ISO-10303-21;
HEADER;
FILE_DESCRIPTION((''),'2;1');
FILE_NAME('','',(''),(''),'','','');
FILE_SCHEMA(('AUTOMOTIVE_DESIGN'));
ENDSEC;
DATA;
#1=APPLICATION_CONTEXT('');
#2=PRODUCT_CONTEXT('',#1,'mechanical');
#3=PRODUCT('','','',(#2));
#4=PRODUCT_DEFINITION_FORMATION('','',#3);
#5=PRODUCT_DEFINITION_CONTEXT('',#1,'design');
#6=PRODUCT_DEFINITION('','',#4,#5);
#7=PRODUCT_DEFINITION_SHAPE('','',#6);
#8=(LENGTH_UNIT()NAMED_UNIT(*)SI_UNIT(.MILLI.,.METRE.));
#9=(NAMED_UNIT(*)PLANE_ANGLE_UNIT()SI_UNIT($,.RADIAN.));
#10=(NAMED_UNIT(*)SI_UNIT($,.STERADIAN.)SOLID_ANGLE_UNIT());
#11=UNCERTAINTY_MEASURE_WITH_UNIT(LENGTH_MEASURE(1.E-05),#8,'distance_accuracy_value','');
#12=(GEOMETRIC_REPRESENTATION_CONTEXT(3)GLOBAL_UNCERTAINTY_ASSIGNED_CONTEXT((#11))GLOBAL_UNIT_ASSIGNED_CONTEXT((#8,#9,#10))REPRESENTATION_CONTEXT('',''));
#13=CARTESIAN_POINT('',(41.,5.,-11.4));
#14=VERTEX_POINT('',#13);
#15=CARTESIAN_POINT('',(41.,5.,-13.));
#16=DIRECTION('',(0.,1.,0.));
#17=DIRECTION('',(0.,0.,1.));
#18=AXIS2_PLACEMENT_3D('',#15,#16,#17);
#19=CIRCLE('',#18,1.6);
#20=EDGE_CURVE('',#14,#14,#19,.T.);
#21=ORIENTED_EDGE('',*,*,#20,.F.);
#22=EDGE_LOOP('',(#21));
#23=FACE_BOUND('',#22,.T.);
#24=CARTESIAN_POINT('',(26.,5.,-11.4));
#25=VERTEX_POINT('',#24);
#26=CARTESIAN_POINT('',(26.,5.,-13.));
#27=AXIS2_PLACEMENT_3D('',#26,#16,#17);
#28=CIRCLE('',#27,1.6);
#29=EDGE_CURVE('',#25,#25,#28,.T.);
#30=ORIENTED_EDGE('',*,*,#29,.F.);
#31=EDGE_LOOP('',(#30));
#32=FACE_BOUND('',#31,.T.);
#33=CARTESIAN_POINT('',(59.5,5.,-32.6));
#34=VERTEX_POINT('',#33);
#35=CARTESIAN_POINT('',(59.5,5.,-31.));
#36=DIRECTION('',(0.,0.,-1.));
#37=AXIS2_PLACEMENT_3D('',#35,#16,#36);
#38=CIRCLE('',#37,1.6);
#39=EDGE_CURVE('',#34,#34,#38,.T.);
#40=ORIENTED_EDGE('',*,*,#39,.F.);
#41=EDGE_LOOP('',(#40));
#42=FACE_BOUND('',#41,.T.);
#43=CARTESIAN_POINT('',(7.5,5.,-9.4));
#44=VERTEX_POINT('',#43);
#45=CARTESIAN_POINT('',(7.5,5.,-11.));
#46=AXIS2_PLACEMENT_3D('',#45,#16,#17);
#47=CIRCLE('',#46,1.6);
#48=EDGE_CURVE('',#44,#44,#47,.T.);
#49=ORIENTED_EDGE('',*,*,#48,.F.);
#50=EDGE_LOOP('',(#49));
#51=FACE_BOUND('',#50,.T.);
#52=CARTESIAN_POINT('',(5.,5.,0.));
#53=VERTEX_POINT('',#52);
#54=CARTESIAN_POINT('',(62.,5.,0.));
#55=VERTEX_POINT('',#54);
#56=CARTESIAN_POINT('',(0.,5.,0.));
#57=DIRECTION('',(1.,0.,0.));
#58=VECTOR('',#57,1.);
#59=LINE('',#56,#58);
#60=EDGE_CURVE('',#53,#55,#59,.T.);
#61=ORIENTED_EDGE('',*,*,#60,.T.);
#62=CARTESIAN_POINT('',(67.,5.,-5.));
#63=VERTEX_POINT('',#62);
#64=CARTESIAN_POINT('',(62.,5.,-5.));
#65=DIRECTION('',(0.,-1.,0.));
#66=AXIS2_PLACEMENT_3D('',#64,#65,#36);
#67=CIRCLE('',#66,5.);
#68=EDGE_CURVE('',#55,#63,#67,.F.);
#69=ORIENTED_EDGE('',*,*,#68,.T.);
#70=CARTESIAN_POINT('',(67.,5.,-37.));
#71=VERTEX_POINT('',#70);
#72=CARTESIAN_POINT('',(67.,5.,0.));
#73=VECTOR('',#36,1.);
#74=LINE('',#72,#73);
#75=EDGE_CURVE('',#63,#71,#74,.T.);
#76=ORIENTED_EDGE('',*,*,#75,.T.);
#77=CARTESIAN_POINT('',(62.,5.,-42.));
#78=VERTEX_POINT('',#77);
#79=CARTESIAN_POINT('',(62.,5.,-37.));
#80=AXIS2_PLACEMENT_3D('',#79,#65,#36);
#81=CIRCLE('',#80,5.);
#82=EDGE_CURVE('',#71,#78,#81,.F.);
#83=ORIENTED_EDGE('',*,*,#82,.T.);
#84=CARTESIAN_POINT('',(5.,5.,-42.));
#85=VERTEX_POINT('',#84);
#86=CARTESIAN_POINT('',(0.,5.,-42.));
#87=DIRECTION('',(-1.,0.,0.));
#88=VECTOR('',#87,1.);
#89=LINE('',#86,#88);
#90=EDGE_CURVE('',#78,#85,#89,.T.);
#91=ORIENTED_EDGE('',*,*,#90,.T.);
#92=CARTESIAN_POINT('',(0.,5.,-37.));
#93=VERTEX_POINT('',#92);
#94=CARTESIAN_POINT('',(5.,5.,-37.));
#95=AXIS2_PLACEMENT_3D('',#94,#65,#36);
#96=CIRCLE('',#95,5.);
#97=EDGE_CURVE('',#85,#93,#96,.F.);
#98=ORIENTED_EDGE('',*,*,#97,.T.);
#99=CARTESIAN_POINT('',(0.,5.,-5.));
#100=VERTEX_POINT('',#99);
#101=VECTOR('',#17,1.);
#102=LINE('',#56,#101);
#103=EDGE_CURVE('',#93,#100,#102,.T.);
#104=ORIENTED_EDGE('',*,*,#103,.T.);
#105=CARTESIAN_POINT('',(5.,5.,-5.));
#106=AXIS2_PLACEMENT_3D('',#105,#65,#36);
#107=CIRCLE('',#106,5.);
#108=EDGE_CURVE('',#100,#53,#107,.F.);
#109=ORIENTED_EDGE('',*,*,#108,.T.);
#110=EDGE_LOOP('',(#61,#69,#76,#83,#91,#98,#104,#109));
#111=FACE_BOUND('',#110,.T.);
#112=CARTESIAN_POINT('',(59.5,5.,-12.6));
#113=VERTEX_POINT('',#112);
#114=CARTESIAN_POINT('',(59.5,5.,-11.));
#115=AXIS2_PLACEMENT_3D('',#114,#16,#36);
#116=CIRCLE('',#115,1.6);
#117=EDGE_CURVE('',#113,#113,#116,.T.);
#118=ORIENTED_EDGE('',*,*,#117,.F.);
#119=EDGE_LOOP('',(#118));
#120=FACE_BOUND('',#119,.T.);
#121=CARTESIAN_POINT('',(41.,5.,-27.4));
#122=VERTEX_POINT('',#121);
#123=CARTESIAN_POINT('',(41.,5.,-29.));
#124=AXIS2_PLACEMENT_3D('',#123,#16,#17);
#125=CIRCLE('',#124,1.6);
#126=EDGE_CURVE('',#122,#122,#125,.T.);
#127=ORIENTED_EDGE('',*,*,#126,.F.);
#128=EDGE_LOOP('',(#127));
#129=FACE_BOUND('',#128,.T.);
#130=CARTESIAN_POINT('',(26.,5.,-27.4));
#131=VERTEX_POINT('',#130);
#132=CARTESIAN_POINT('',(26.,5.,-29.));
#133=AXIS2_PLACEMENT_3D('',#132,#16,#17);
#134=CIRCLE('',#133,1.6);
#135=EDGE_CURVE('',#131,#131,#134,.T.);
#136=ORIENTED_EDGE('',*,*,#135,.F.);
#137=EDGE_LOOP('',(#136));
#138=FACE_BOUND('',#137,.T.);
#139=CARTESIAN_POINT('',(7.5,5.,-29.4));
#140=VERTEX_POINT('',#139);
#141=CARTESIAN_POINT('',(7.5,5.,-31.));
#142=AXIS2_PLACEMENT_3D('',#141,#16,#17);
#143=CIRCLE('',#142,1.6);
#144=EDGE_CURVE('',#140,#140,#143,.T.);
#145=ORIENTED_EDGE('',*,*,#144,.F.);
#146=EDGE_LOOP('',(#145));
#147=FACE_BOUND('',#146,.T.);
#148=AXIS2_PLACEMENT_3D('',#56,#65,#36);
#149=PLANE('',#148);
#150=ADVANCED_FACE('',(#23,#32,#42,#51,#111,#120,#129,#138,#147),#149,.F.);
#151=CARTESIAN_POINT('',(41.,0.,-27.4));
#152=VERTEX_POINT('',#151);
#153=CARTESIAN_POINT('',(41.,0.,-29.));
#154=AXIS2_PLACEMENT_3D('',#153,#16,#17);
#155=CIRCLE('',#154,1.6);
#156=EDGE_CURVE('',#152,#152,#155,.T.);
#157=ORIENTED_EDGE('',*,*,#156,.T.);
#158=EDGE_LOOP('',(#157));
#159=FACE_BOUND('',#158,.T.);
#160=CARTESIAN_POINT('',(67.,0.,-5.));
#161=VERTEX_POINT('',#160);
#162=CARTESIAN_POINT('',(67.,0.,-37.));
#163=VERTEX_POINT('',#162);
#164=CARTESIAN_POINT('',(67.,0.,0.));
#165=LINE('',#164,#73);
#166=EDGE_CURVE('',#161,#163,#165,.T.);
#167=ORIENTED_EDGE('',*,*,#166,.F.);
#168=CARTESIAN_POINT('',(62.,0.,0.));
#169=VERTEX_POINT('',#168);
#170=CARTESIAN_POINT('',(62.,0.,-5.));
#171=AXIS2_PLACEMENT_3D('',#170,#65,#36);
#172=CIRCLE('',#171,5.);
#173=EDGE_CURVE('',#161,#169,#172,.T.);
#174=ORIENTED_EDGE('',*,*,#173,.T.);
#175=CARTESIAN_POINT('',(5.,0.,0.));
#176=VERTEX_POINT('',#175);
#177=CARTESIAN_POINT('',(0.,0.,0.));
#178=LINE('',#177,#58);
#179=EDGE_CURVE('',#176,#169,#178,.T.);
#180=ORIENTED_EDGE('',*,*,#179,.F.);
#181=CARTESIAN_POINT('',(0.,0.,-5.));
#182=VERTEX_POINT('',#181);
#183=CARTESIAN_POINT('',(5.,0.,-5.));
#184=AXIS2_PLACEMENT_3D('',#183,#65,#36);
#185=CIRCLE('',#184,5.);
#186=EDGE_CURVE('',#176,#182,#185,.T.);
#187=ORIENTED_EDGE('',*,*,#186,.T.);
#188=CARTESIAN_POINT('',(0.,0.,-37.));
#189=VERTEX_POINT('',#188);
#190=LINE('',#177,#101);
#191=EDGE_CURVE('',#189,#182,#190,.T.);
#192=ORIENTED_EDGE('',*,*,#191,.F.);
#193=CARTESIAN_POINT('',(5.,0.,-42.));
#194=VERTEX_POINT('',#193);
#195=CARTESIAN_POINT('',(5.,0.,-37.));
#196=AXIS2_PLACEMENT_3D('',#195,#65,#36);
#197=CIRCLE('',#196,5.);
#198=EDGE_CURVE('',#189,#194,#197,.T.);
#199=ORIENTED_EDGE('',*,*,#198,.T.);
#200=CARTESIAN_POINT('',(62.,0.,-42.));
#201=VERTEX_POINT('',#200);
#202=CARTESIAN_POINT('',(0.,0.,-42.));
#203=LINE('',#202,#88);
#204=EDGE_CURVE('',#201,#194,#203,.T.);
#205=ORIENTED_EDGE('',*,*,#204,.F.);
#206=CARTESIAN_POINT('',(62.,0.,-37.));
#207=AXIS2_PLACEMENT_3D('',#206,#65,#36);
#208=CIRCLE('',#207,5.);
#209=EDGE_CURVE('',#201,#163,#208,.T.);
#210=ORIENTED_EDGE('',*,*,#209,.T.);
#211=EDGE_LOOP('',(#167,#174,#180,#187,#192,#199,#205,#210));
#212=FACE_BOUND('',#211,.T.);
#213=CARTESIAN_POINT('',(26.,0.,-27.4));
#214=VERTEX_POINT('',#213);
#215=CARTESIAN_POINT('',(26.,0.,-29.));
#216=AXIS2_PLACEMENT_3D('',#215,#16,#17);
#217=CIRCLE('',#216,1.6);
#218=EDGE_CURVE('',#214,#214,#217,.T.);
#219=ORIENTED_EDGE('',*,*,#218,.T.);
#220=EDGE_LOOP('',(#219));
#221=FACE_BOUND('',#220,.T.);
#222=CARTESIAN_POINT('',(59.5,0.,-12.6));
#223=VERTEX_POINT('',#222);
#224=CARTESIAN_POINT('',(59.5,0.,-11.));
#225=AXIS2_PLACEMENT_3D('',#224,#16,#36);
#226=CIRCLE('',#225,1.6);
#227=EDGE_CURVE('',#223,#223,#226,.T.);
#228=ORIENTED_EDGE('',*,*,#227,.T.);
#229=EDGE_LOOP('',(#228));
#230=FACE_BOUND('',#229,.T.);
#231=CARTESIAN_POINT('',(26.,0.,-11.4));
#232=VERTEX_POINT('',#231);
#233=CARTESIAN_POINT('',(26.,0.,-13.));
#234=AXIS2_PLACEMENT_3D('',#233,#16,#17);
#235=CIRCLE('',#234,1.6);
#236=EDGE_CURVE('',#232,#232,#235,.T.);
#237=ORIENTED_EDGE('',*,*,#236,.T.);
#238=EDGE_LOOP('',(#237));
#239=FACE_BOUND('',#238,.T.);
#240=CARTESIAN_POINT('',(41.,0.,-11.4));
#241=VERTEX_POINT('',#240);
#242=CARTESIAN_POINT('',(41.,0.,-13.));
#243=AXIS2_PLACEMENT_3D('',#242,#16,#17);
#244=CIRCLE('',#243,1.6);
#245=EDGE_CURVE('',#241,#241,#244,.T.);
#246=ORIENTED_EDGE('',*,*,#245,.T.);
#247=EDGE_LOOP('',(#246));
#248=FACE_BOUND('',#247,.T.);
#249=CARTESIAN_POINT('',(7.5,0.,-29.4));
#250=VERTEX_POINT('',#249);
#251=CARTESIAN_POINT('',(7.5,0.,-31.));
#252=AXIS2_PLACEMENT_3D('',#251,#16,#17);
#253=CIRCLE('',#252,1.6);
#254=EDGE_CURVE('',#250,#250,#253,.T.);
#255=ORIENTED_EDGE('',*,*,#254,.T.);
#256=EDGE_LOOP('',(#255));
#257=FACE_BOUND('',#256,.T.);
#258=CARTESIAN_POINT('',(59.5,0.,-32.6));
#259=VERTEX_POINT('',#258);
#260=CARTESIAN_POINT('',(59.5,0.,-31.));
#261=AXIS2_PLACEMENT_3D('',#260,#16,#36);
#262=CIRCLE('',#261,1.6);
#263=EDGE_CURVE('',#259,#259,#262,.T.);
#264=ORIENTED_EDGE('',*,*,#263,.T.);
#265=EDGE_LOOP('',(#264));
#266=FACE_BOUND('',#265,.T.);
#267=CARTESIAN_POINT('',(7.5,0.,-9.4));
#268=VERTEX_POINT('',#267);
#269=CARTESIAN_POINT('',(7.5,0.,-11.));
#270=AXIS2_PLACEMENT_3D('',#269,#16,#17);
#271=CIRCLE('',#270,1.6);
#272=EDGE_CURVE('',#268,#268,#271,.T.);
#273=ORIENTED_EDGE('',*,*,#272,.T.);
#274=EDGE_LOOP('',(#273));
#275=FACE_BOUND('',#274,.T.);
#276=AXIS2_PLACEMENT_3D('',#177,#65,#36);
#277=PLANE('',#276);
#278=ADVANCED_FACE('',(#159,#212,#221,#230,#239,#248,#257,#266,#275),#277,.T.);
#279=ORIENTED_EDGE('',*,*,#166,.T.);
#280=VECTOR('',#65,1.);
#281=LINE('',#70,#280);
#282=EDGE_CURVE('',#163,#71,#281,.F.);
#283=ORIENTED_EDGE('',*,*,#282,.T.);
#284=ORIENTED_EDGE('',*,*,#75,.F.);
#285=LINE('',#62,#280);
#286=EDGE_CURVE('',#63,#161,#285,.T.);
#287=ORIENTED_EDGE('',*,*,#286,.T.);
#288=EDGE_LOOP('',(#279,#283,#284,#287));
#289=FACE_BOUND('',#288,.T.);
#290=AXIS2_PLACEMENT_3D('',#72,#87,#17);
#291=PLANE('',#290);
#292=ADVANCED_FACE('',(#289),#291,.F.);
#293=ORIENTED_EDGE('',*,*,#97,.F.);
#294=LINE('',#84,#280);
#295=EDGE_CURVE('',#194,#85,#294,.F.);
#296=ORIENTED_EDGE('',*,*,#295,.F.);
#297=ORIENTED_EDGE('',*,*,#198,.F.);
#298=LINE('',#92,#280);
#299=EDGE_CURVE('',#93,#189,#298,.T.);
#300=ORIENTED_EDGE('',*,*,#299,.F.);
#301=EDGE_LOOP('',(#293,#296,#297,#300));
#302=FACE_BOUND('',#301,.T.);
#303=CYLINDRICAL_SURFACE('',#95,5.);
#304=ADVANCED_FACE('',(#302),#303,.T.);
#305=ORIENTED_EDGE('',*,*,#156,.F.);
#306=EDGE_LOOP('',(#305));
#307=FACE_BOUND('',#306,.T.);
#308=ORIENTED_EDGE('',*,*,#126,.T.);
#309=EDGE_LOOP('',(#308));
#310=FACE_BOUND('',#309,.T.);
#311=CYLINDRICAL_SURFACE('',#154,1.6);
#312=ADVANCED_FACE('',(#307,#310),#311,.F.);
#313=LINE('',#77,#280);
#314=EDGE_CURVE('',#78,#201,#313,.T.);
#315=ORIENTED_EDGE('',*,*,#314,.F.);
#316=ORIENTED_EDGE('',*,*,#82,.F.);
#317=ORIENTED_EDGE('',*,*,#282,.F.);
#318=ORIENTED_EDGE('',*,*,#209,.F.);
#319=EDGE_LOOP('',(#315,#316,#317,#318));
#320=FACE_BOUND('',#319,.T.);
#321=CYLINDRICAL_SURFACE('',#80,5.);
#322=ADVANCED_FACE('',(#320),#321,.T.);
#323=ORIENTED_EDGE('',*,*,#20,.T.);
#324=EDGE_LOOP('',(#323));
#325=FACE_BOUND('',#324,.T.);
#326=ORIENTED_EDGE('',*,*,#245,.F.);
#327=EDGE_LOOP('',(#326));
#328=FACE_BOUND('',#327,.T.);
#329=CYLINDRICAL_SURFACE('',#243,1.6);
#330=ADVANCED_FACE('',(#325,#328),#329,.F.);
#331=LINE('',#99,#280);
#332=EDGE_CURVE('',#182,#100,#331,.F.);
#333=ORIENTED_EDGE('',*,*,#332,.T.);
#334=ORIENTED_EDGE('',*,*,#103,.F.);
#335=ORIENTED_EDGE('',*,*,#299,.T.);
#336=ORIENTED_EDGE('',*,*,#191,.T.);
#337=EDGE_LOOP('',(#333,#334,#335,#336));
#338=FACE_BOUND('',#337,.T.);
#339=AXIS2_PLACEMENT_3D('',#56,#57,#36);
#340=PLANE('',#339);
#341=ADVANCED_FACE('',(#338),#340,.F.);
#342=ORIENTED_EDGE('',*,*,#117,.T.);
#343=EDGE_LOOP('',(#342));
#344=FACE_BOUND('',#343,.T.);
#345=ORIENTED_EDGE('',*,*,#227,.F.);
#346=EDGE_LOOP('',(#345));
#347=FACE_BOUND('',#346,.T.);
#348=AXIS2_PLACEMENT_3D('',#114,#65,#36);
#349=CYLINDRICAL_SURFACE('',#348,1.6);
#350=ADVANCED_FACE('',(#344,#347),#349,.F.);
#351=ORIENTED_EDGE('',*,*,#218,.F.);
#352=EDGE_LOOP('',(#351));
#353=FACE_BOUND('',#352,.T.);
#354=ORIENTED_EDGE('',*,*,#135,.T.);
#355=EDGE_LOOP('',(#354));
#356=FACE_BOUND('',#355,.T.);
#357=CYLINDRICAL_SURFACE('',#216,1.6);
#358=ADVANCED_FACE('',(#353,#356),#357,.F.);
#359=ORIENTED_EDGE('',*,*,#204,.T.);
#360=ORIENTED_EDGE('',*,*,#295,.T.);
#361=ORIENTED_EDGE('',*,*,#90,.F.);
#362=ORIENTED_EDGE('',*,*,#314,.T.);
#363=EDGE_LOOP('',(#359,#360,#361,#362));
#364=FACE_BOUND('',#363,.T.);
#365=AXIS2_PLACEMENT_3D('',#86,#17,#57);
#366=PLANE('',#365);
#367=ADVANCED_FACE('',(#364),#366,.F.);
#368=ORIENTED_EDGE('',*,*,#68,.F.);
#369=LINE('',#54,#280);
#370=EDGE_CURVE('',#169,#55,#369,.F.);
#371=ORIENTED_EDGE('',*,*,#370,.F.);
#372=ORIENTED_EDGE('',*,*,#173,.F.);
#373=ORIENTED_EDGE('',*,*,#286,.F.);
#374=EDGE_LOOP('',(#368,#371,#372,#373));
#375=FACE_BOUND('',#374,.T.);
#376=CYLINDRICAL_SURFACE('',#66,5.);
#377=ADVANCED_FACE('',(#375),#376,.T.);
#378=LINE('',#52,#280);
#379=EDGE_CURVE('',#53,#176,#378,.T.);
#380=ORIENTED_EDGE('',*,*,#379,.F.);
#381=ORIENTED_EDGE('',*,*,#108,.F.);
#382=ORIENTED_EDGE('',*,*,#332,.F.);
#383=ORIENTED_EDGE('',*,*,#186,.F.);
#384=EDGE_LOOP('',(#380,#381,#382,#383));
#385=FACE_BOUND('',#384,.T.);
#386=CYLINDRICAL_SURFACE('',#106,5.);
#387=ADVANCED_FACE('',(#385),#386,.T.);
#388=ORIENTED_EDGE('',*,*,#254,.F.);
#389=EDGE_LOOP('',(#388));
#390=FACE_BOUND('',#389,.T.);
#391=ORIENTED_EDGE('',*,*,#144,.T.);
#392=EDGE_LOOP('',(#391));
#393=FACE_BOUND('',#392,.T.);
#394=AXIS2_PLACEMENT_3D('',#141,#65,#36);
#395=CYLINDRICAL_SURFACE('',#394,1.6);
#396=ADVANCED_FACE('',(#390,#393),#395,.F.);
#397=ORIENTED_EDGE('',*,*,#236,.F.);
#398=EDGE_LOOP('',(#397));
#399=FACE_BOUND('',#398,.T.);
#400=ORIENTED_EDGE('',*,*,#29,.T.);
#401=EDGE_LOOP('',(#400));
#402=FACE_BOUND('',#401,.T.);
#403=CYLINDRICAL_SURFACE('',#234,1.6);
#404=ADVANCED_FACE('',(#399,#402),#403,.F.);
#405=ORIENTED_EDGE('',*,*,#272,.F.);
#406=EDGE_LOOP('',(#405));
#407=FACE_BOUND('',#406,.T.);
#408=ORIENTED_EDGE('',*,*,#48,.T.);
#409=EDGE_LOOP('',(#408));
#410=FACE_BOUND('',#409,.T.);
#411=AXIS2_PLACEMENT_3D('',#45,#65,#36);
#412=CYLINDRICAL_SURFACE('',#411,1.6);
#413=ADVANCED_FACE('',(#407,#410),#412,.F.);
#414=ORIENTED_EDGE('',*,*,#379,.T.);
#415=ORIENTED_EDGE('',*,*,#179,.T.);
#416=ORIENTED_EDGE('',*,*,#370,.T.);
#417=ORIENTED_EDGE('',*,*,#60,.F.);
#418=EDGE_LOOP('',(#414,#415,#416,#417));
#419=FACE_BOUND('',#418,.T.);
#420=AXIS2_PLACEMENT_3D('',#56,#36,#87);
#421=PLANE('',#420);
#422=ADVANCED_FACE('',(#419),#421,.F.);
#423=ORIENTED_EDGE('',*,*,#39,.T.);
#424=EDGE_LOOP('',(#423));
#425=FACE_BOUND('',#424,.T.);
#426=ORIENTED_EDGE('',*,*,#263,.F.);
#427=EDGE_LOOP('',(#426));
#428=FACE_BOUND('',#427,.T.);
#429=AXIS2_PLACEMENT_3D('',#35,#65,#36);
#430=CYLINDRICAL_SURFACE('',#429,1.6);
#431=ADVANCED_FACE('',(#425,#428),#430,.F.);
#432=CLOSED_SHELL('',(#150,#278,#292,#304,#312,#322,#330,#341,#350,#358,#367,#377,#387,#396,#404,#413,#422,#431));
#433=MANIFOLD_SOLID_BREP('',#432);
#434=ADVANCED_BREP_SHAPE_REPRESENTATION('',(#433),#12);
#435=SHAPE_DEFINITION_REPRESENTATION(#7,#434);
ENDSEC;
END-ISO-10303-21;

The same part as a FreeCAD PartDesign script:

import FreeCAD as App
import Part
import Sketcher

V = App.Vector
Q = App.Units.Quantity


def edges_at(feature, points):
    """Names of the edges that pass closest to the given points."""
    edges = feature.Shape.Edges
    near = lambda p: min(range(len(edges)), key=lambda i: edges[i].distToShape(Part.Vertex(*p))[0])
    return sorted({f"Edge{near(p) + 1}" for p in points})

doc = App.newDocument("Part")
body = doc.addObject("PartDesign::Body", "Body")

sketch1 = body.newObject("Sketcher::SketchObject", "Sketch")
sketch1.AttachmentSupport = (doc.getObject("XZ_Plane"), [""])
sketch1.MapMode = "FlatFace"
sketch1.addGeometry([
    Part.LineSegment(V(0, -42, 0), V(0, 0, 0)),
    Part.LineSegment(V(0, 0, 0), V(67, 0, 0)),
    Part.LineSegment(V(67, 0, 0), V(67, -42, 0)),
    Part.LineSegment(V(67, -42, 0), V(0, -42, 0)),
    Part.Circle(V(7.5, -11, 0), V(0, 0, 1), 1.6),
    Part.Circle(V(59.5, -11, 0), V(0, 0, 1), 1.6),
    Part.Circle(V(7.5, -31, 0), V(0, 0, 1), 1.6),
    Part.Circle(V(59.5, -31, 0), V(0, 0, 1), 1.6),
], False)
sketch1.addConstraint([
    Sketcher.Constraint("Coincident", 0, 2, 1, 1),
    Sketcher.Constraint("Coincident", 1, 2, 2, 1),
    Sketcher.Constraint("Coincident", 2, 2, 3, 1),
    Sketcher.Constraint("Coincident", 3, 2, 0, 1),
    Sketcher.Constraint("Vertical", 0),
    Sketcher.Constraint("Horizontal", 1),
    Sketcher.Constraint("Vertical", 2),
    Sketcher.Constraint("Horizontal", 3),
    Sketcher.Constraint("Coincident", 0, 2, -1, 1),
    Sketcher.Constraint("Equal", 4, 5),
    Sketcher.Constraint("Equal", 5, 6),
    Sketcher.Constraint("Equal", 6, 7),
    Sketcher.Constraint("Horizontal", 4, 3, 5, 3),
    Sketcher.Constraint("Horizontal", 6, 3, 7, 3),
    Sketcher.Constraint("Vertical", 4, 3, 6, 3),
    Sketcher.Constraint("Vertical", 5, 3, 7, 3),
    Sketcher.Constraint("Diameter", 4, Q("3.2 mm")),
    Sketcher.Constraint("DistanceX", 1, 1, 1, 2, Q("67 mm")),
    Sketcher.Constraint("DistanceY", 0, 1, 0, 2, Q("42 mm")),
    Sketcher.Constraint("DistanceY", 4, 3, -1, 1, Q("11 mm")),
    Sketcher.Constraint("DistanceY", 6, 3, -1, 1, Q("31 mm")),
    Sketcher.Constraint("DistanceX", 4, 3, 5, 3, Q("52 mm")),
    Sketcher.Constraint("DistanceX", -1, 1, 4, 3, Q("7.5 mm")),
])
pad1 = body.newObject("PartDesign::Pad", "Pad")
pad1.Profile = sketch1
pad1.Length = 5
pad1.Reversed = True

sketch2 = body.newObject("Sketcher::SketchObject", "Sketch001")
sketch2.AttachmentSupport = (doc.getObject("XZ_Plane"), [""])
sketch2.MapMode = "FlatFace"
sketch2.AttachmentOffset = App.Placement(V(0, 0, -5), App.Rotation())
sketch2.addGeometry([
    Part.Circle(V(41, -29, 0), V(0, 0, 1), 1.6),
    Part.Circle(V(41, -13, 0), V(0, 0, 1), 1.6),
    Part.Circle(V(26, -13, 0), V(0, 0, 1), 1.6),
    Part.Circle(V(26, -29, 0), V(0, 0, 1), 1.6),
], False)
sketch2.addConstraint([
    Sketcher.Constraint("Equal", 0, 1),
    Sketcher.Constraint("Equal", 1, 2),
    Sketcher.Constraint("Equal", 2, 3),
    Sketcher.Constraint("Horizontal", 1, 3, 2, 3),
    Sketcher.Constraint("Horizontal", 0, 3, 3, 3),
    Sketcher.Constraint("Vertical", 0, 3, 1, 3),
    Sketcher.Constraint("Vertical", 2, 3, 3, 3),
    Sketcher.Constraint("Diameter", 0, Q("3.2 mm")),
    Sketcher.Constraint("DistanceX", -1, 1, 0, 3, Q("41 mm")),
    Sketcher.Constraint("DistanceY", 0, 3, -1, 1, Q("29 mm")),
    Sketcher.Constraint("DistanceY", 1, 3, -1, 1, Q("13 mm")),
    Sketcher.Constraint("DistanceX", -1, 1, 2, 3, Q("26 mm")),
])
pocket1 = body.newObject("PartDesign::Pocket", "Pocket")
pocket1.Profile = sketch2
pocket1.Type = "ThroughAll"
pocket1.Reversed = True
doc.recompute()

fillet = body.newObject("PartDesign::Fillet", "Fillet")
fillet.Base = (pocket1, edges_at(pocket1, [
    (0, 2.5, -42),
    (67, 2.5, -42),
    (67, 2.5, 0),
    (0, 2.5, 0),
]))
fillet.Radius = 5

doc.recompute()
